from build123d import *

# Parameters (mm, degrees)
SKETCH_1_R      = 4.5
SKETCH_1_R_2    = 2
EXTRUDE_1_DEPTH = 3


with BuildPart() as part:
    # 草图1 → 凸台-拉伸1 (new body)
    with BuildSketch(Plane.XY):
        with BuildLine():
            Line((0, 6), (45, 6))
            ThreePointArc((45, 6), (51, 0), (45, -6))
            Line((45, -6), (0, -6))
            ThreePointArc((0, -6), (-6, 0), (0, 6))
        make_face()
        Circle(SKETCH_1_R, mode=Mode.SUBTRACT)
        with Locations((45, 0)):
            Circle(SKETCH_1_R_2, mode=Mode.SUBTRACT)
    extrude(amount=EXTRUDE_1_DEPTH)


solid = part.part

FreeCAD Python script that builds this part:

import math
import FreeCAD as App
import Part
import Sketcher
from FreeCAD import Vector
Q = App.Units.Quantity

doc = App.newDocument("Part")
body = doc.addObject("PartDesign::Body", "Body")

# Sketch on XY plane
sketch1 = body.newObject("Sketcher::SketchObject", "Sketch")
sketch1.AttachmentSupport = (doc.getObject("XY_Plane"), [""])
sketch1.MapMode = "FlatFace"
sketch1.addGeometry(Part.LineSegment(Vector(45, 6, 0), Vector(0, 6, 0)), False)
sketch1.addGeometry(Part.ArcOfCircle(Part.Circle(Vector(0, 0, 0), Vector(0, 0, 1), 6), math.radians(90), math.radians(270)), False)
sketch1.addGeometry(Part.LineSegment(Vector(0, -6, 0), Vector(45, -6, 0)), False)
sketch1.addGeometry(Part.ArcOfCircle(Part.Circle(Vector(45, 0, 0), Vector(0, 0, 1), 6), math.radians(-90), math.radians(90)), False)
sketch1.addGeometry(Part.Circle(Vector(45, 0, 0), Vector(0, 0, 1), 2), False)
sketch1.addGeometry(Part.Circle(Vector(0, 0, 0), Vector(0, 0, 1), 4.5), False)
sketch1.addConstraint(Sketcher.Constraint("Tangent", 0, 2, 1, 1))
sketch1.addConstraint(Sketcher.Constraint("Tangent", 1, 2, 2, 1))
sketch1.addConstraint(Sketcher.Constraint("Tangent", 2, 2, 3, 1))
sketch1.addConstraint(Sketcher.Constraint("Tangent", 3, 2, 0, 1))
sketch1.addConstraint(Sketcher.Constraint("Horizontal", 0))
sketch1.addConstraint(Sketcher.Constraint("Horizontal", 2))
sketch1.addConstraint(Sketcher.Constraint("Coincident", 1, 3, -1, 1))
sketch1.addConstraint(Sketcher.Constraint("Coincident", 5, 3, -1, 1))
sketch1.addConstraint(Sketcher.Constraint("Coincident", 4, 3, 3, 3))
sketch1.addConstraint(Sketcher.Constraint("Diameter", 4, Q("4 mm")))
sketch1.addConstraint(Sketcher.Constraint("Diameter", 5, Q("9 mm")))
sketch1.addConstraint(Sketcher.Constraint("Radius", 1, Q("6 mm")))
sketch1.addConstraint(Sketcher.Constraint("DistanceX", 0, 2, 0, 1, Q("45 mm")))
pad1 = body.newObject("PartDesign::Pad", "Pad")
pad1.Profile = sketch1
pad1.Length = 3

doc.recompute()
